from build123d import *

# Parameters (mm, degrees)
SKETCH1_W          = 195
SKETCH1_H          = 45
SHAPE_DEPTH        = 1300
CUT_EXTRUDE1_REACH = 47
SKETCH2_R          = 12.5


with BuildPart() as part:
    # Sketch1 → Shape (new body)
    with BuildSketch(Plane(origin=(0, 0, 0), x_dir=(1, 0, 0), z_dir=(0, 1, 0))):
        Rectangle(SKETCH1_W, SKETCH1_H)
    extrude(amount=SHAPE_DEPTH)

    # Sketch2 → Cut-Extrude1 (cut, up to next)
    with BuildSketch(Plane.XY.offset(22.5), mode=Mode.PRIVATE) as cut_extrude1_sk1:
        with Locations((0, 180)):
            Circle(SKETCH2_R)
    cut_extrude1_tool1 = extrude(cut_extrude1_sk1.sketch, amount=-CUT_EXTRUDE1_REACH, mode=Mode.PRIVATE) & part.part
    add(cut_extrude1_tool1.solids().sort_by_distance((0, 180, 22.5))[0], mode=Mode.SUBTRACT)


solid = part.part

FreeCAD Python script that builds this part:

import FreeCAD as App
import Part
import Sketcher
from FreeCAD import Vector


def add_polygon(sketch, points):
    """Adds a closed chain of lines whose ends are joined by coincident constraints."""
    first, n = sketch.GeometryCount, len(points)
    for a, b in zip(points, points[1:] + points[:1]):
        sketch.addGeometry(Part.LineSegment(App.Vector(*a, 0), App.Vector(*b, 0)), False)
    for i in range(n):
        sketch.addConstraint(Sketcher.Constraint("Coincident", first + i, 2, first + (i + 1) % n, 1))

doc = App.newDocument("Part")
params = doc.addObject("Spreadsheet::Sheet", "Params")
for row, (alias, value) in enumerate([
    ("sketch1_width", "195 mm"),
    ("sketch1_height", "45 mm"),
    ("pad1_length", "1300 mm"),
    ("sketch2_diameter", "25 mm"),
], start=1):
    params.set(f"A{row}", alias)
    params.set(f"B{row}", "=" + value)
    params.setAlias(f"B{row}", alias)

body = doc.addObject("PartDesign::Body", "Body")

sketch1 = body.newObject("Sketcher::SketchObject", "Sketch")
sketch1.AttachmentSupport = (doc.getObject("XZ_Plane"), [""])
sketch1.MapMode = "FlatFace"
add_polygon(sketch1, [(-98, -22), (-98, 22), (98, 22), (98, -22)])
sketch1.addConstraint([
    Sketcher.Constraint("Vertical", 0),
    Sketcher.Constraint("Horizontal", 1),
    Sketcher.Constraint("Vertical", 2),
    Sketcher.Constraint("Horizontal", 3),
    Sketcher.Constraint("Symmetric", 0, 2, 2, 2, -1, 1),
    Sketcher.Constraint("DistanceX", 1, 1, 1, 2, 195.0),
    Sketcher.Constraint("DistanceY", 0, 1, 0, 2, 45.0),
])
sketch1.setExpression("Constraints[9]", "Params.sketch1_width")
sketch1.setExpression("Constraints[10]", "Params.sketch1_height")
pad1 = body.newObject("PartDesign::Pad", "Pad")
pad1.Profile = sketch1
pad1.setExpression("Length", "Params.pad1_length")
pad1.Reversed = True

sketch2 = body.newObject("Sketcher::SketchObject", "Sketch001")
sketch2.AttachmentSupport = (doc.getObject("XY_Plane"), [""])
sketch2.MapMode = "FlatFace"
sketch2.AttachmentOffset = App.Placement(Vector(0, 0, 22.5), App.Rotation())
sketch2.addGeometry(Part.Circle(Vector(0, 180, 0), Vector(0, 0, 1), 12), False)
sketch2.addConstraint([
    Sketcher.Constraint("PointOnObject", 0, 3, -2),
    Sketcher.Constraint("Diameter", 0, 25.0),
    Sketcher.Constraint("DistanceY", -1, 1, 0, 3, 180.0),
])
sketch2.setExpression("Constraints[1]", "Params.sketch2_diameter")
pocket1 = body.newObject("PartDesign::Pocket", "Pocket")
pocket1.Profile = sketch2
pocket1.Type = "UpToFirst"

doc.recompute()
